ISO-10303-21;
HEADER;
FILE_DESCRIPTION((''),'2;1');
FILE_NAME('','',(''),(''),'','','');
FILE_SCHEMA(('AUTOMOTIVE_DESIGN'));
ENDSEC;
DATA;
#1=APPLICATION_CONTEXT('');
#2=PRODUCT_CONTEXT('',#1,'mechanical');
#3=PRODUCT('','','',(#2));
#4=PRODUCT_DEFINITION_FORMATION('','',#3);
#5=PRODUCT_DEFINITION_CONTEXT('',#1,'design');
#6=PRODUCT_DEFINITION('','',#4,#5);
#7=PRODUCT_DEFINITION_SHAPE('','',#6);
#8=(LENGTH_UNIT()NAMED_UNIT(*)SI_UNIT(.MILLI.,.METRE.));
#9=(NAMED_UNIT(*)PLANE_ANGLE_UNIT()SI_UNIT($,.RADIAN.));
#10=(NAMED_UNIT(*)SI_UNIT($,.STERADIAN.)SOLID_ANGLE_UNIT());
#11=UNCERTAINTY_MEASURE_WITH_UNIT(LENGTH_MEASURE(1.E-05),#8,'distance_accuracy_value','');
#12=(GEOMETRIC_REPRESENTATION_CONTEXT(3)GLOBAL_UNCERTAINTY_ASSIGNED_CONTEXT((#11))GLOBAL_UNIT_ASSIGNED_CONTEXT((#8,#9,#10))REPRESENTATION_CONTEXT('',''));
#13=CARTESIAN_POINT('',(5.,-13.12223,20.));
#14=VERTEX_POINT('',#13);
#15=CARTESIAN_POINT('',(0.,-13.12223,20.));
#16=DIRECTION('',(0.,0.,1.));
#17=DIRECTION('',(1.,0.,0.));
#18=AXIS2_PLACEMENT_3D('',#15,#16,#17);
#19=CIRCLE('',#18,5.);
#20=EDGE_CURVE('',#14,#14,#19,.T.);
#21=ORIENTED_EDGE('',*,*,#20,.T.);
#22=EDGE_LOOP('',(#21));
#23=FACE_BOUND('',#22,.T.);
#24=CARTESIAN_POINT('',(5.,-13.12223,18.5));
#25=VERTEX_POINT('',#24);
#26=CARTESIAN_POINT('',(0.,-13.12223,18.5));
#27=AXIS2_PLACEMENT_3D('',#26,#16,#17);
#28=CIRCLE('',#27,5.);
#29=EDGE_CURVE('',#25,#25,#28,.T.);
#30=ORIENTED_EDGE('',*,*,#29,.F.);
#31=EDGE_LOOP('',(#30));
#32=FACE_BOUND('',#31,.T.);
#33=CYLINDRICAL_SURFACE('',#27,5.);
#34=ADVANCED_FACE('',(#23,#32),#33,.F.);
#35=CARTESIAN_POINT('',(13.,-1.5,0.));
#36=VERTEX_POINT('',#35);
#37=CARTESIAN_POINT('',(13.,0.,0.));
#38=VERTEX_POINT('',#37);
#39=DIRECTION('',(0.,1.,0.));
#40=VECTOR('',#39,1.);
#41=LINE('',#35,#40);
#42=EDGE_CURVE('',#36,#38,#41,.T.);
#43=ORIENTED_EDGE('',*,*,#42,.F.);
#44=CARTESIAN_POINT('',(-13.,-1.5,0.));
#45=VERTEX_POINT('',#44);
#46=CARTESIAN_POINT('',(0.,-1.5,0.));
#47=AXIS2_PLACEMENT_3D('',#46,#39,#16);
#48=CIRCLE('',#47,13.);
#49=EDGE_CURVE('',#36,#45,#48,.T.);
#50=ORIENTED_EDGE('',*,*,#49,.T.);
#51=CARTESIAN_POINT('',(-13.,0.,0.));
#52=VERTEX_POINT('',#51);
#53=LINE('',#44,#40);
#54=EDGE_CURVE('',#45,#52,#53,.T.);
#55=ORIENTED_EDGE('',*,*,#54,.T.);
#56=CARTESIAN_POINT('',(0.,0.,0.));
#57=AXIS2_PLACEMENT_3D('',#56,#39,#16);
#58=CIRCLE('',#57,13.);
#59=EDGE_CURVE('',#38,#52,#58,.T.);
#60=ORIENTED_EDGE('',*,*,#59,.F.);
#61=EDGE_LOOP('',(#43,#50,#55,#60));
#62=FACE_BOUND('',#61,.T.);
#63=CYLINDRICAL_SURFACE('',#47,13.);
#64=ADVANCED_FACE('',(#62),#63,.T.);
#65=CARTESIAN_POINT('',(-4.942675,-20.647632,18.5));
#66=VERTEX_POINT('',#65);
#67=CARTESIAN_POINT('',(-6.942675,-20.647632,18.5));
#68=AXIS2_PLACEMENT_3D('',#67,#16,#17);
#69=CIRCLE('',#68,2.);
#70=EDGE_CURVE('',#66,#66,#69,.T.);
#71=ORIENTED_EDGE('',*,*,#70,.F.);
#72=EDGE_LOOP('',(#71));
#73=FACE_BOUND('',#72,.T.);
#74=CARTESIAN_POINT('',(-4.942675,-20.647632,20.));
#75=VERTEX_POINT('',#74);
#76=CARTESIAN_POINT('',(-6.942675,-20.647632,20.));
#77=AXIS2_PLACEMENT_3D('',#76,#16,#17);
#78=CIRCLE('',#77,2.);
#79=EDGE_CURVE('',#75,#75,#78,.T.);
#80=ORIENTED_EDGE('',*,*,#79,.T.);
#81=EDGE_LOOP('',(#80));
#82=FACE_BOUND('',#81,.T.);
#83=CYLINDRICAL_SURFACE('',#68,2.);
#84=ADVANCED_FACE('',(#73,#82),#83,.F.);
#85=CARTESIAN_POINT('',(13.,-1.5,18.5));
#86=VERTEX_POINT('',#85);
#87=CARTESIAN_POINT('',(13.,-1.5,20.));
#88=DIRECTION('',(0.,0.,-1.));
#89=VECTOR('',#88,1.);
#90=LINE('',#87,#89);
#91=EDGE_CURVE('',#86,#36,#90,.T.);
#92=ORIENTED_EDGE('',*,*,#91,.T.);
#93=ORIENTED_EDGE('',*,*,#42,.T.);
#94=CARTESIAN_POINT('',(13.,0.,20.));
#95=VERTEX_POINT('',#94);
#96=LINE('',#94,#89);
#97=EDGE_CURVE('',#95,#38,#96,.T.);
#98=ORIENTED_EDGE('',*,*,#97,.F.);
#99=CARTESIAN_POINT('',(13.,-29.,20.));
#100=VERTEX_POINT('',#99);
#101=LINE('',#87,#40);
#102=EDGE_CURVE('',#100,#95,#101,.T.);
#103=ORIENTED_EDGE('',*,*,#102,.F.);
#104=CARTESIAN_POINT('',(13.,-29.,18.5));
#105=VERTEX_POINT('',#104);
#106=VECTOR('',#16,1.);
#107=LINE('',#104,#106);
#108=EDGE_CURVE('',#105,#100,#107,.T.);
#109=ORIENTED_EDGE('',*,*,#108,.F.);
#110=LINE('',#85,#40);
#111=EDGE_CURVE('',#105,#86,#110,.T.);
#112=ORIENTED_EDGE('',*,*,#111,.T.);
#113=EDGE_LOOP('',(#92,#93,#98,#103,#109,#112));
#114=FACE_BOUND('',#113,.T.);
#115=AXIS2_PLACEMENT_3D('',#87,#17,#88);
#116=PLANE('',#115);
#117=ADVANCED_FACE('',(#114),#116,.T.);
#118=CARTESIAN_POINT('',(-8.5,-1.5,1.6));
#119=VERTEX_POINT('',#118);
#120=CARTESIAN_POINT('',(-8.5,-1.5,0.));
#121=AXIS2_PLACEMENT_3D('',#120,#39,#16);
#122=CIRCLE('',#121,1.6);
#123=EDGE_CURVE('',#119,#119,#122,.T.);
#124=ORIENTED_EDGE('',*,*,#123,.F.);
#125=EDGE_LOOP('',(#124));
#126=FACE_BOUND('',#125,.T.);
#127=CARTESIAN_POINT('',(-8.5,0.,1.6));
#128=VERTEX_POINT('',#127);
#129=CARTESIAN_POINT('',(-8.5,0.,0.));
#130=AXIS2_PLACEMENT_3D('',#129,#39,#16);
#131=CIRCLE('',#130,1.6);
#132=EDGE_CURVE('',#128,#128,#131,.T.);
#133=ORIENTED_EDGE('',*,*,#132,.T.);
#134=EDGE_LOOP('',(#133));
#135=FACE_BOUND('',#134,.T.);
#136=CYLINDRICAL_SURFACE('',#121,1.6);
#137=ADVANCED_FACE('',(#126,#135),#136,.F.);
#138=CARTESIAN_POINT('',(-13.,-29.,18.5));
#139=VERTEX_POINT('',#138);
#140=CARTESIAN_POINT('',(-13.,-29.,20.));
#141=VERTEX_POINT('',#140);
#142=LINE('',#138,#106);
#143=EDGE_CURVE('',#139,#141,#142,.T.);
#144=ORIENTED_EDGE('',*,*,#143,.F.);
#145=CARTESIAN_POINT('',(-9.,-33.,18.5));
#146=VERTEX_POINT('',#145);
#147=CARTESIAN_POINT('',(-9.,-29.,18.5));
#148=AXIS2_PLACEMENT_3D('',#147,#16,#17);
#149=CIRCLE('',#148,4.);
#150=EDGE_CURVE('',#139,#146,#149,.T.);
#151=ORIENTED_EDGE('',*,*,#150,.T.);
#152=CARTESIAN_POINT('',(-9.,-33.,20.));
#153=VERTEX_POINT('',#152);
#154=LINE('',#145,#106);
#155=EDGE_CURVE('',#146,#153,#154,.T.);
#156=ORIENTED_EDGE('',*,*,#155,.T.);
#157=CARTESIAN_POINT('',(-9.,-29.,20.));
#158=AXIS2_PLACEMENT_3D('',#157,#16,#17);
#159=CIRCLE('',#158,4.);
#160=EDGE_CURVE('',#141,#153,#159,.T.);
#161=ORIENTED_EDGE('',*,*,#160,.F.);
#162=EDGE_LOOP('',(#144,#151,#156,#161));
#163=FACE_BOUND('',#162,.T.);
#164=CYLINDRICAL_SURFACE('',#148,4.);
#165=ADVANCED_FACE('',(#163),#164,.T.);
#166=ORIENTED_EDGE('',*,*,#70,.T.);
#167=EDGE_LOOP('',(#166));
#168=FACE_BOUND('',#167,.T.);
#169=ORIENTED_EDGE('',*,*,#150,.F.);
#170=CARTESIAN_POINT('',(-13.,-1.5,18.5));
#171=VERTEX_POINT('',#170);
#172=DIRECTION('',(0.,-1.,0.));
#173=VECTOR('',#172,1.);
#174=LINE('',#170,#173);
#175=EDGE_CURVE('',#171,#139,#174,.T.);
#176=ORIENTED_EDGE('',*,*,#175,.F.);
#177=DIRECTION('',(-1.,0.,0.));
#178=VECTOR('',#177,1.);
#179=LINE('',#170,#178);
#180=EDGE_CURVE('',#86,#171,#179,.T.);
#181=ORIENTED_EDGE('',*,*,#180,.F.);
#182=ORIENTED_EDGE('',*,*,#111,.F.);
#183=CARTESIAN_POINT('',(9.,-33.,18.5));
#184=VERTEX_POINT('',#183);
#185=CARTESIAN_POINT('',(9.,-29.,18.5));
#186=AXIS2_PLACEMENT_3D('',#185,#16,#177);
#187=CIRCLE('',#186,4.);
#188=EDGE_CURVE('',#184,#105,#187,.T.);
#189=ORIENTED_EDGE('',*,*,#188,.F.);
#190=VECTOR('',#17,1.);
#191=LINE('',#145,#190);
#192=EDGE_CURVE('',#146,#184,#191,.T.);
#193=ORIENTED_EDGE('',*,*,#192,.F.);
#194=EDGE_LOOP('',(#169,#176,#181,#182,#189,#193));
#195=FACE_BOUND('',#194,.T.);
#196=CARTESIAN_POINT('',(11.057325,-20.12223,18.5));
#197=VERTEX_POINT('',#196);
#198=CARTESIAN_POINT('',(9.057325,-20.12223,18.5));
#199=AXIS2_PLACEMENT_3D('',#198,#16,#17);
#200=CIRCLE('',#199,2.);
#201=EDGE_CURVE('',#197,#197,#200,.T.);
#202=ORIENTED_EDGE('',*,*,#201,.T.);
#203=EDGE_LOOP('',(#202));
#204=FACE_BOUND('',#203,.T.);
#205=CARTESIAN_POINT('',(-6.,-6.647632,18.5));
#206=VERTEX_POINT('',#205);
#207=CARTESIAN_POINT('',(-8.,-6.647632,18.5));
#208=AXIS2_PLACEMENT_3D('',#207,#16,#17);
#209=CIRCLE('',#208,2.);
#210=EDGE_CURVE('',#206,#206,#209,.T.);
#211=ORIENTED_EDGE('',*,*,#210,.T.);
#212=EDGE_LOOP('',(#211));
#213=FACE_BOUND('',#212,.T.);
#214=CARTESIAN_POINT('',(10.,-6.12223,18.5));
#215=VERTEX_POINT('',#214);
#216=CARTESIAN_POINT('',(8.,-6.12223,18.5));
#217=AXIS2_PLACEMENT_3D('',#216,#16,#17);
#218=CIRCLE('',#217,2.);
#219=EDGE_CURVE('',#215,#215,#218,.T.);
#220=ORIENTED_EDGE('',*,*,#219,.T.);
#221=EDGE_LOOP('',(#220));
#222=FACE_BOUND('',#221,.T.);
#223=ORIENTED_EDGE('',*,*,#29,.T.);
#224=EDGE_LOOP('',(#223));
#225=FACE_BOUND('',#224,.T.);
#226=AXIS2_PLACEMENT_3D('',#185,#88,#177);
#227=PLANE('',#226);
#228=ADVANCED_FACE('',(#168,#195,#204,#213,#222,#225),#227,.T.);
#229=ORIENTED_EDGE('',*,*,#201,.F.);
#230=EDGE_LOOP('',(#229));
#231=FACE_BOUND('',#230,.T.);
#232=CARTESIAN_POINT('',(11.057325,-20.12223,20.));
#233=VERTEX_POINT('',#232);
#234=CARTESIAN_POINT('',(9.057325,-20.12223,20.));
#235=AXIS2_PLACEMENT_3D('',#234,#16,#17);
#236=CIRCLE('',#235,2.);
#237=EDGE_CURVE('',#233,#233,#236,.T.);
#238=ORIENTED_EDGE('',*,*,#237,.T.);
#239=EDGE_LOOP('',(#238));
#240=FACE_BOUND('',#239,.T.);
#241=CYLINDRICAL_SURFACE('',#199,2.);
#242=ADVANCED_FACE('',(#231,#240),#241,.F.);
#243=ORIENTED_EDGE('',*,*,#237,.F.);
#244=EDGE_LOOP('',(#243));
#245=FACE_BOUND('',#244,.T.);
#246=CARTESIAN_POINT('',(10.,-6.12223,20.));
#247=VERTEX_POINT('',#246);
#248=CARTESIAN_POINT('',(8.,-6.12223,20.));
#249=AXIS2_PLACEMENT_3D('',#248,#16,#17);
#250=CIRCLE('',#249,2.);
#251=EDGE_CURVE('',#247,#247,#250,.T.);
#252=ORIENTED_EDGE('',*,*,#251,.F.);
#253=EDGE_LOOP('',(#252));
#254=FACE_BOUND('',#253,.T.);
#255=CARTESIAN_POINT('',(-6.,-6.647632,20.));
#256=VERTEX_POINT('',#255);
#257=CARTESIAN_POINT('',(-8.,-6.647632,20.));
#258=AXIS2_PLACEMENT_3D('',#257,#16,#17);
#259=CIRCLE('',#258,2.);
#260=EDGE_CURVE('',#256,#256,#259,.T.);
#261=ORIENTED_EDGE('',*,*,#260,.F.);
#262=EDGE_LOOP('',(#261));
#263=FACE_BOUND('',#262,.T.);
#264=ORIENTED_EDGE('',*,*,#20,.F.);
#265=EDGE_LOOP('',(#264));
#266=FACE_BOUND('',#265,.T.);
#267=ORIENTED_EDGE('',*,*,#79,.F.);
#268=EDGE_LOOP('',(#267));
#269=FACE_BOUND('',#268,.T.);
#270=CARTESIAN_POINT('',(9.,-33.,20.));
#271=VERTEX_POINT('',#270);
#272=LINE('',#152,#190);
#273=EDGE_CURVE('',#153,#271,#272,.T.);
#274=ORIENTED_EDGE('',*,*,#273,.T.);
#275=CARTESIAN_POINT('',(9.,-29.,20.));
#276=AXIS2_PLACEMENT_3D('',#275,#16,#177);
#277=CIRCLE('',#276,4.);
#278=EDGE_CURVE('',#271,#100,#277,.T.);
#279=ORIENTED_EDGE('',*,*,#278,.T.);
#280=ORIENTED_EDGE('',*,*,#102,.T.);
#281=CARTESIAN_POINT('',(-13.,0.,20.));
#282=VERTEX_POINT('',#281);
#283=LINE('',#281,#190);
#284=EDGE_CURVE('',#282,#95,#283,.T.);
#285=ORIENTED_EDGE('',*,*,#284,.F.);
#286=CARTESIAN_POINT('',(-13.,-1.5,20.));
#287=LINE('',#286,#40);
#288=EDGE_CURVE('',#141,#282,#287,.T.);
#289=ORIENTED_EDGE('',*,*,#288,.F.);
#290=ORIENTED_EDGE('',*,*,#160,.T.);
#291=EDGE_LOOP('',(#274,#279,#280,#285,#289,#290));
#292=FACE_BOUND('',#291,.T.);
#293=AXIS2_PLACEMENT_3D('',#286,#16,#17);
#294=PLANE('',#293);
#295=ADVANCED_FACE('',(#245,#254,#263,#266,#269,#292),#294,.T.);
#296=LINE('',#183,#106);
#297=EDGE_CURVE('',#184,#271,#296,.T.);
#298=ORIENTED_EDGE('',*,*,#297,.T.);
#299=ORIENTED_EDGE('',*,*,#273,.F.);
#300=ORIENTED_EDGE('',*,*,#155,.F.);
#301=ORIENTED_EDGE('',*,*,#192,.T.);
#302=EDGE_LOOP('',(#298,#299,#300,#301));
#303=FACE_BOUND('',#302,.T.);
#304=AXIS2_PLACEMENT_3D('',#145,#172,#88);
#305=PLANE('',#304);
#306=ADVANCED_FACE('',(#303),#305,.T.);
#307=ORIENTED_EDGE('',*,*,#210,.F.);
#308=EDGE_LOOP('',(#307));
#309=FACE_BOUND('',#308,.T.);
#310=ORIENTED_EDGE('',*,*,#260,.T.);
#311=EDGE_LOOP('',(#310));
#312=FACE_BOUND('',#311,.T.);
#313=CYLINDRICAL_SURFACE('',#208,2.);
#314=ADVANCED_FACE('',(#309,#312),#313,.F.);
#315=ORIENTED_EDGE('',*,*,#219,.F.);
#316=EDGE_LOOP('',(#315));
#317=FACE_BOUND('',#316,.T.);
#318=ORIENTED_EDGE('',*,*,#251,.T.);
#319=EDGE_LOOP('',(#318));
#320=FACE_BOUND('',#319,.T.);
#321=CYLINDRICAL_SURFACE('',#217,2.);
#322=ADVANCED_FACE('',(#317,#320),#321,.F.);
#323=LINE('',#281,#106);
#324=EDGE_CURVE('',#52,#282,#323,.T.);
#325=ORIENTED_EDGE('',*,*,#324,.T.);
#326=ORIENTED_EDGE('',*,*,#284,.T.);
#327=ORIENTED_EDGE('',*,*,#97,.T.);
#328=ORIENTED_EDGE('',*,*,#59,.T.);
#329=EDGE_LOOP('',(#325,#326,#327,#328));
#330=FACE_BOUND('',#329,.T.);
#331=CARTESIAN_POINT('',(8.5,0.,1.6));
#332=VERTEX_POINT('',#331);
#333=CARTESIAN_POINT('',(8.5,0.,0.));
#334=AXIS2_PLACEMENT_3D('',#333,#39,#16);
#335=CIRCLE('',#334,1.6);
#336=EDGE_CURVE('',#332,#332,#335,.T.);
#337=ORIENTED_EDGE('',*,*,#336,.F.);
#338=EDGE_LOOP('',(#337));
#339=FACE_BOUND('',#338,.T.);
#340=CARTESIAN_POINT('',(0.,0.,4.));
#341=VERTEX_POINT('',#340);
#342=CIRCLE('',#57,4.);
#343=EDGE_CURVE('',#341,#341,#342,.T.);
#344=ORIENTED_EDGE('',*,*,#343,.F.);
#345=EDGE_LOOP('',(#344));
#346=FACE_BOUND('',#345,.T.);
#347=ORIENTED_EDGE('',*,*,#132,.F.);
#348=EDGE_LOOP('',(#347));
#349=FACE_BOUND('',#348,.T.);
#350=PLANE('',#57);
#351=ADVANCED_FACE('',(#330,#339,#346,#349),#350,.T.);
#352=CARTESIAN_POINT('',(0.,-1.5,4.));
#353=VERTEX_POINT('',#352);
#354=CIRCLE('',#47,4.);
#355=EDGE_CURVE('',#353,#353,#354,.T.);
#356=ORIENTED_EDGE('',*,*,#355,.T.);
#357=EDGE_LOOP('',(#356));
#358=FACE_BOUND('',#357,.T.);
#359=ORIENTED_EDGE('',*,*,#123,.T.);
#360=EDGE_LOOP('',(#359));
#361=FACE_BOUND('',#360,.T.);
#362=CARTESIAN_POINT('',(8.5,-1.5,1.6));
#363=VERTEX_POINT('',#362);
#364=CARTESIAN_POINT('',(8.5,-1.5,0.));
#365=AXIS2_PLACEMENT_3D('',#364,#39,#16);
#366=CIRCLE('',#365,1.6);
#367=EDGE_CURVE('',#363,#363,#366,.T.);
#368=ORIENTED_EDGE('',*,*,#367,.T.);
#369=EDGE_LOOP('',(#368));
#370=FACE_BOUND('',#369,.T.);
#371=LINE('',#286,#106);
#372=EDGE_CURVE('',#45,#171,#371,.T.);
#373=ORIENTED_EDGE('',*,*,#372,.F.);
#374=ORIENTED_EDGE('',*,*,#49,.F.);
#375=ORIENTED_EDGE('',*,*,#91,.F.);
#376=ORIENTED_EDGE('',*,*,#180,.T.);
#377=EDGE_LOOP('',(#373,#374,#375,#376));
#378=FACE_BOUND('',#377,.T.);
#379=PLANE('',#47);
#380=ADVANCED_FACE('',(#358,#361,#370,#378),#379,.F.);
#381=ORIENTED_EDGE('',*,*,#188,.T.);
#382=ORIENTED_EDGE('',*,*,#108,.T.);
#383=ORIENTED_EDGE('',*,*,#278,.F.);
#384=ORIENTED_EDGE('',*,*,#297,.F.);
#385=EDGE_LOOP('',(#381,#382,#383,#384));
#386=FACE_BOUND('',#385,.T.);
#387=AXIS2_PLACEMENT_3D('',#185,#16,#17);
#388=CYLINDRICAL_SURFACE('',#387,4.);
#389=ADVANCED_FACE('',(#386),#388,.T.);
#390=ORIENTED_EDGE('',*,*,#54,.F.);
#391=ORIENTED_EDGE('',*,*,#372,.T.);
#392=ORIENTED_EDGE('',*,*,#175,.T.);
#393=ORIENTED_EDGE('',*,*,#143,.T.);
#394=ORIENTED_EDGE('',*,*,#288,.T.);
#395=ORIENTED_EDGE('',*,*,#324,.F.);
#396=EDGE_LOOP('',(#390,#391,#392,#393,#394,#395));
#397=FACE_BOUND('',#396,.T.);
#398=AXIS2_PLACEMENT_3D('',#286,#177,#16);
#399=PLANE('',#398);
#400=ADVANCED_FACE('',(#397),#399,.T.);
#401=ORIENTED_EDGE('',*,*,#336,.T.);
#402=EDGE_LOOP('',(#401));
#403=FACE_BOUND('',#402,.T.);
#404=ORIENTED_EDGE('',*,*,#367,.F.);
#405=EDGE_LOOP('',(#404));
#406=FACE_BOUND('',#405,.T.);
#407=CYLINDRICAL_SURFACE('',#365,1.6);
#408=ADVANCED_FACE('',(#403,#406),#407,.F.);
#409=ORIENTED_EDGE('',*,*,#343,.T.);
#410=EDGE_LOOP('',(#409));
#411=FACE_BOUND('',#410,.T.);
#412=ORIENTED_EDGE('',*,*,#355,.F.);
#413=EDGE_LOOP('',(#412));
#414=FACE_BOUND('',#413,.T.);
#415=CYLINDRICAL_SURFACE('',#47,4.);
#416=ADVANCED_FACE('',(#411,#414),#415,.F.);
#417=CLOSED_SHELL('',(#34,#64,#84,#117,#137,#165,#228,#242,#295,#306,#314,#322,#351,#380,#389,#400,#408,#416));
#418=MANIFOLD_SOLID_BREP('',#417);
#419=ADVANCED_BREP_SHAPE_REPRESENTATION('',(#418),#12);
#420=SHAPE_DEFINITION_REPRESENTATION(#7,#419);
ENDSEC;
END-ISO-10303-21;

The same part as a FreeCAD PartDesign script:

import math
import FreeCAD as App
import Part
import Sketcher
Q = App.Units.Quantity

doc = App.newDocument("Part")
body = doc.addObject("PartDesign::Body", "Body")

sketch1 = body.newObject("Sketcher::SketchObject", "Sketch")
sketch1.AttachmentSupport = (doc.getObject("XZ_Plane"), [""])
sketch1.MapMode = "FlatFace"
sketch1.addGeometry([
    Part.LineSegment(App.Vector(-13, 0, 0), App.Vector(-13, 20, 0)),
    Part.LineSegment(App.Vector(-13, 20, 0), App.Vector(13, 20, 0)),
    Part.LineSegment(App.Vector(13, 20, 0), App.Vector(13, 0, 0)),
    Part.ArcOfCircle(Part.Circle(App.Vector(0, 0, 0), App.Vector(0, 0, 1), 13), math.radians(180), math.radians(360)),
    Part.Circle(App.Vector(8.5, 0, 0), App.Vector(0, 0, 1), 1.6),
    Part.Circle(App.Vector(0, 0, 0), App.Vector(0, 0, 1), 4),
    Part.Circle(App.Vector(-8.5, 0, 0), App.Vector(0, 0, 1), 1.6),
], False)
sketch1.addConstraint([
    Sketcher.Constraint("Coincident", 0, 2, 1, 1),
    Sketcher.Constraint("Coincident", 1, 2, 2, 1),
    Sketcher.Constraint("Tangent", 2, 2, 3, 2),
    Sketcher.Constraint("Tangent", 3, 1, 0, 1),
    Sketcher.Constraint("Vertical", 0),
    Sketcher.Constraint("Horizontal", 1),
    Sketcher.Constraint("Vertical", 2),
    Sketcher.Constraint("Coincident", 3, 3, -1, 1),
    Sketcher.Constraint("Coincident", 5, 3, -1, 1),
    Sketcher.Constraint("Equal", 4, 6),
    Sketcher.Constraint("Symmetric", 4, 3, 6, 3, -1, 1),
    Sketcher.Constraint("PointOnObject", 4, 3, -1),
    Sketcher.Constraint("Diameter", 5, Q("8 mm")),
    Sketcher.Constraint("Radius", 3, Q("13 mm")),
    Sketcher.Constraint("Diameter", 4, Q("3.2 mm")),
    Sketcher.Constraint("DistanceY", 0, 1, 0, 2, Q("20 mm")),
    Sketcher.Constraint("DistanceX", 6, 3, 4, 3, Q("17 mm")),
])
pad1 = body.newObject("PartDesign::Pad", "Pad")
pad1.Profile = sketch1
pad1.Length = 1.5

sketch2 = body.newObject("Sketcher::SketchObject", "Sketch001")
sketch2.AttachmentSupport = (doc.getObject("XY_Plane"), [""])
sketch2.MapMode = "FlatFace"
sketch2.AttachmentOffset = App.Placement(App.Vector(0, 0, 20), App.Rotation())
sketch2.addGeometry([
    Part.LineSegment(App.Vector(13, -29, 0), App.Vector(13, -1.5, 0)),
    Part.LineSegment(App.Vector(13, -1.5, 0), App.Vector(-13, -1.5, 0)),
    Part.LineSegment(App.Vector(-13, -1.5, 0), App.Vector(-13, -29, 0)),
    Part.ArcOfCircle(Part.Circle(App.Vector(-9, -29, 0), App.Vector(0, 0, 1), 4), math.radians(180), math.radians(270)),
    Part.LineSegment(App.Vector(-9, -33, 0), App.Vector(9, -33, 0)),
    Part.ArcOfCircle(Part.Circle(App.Vector(9, -29, 0), App.Vector(0, 0, 1), 4), math.radians(-90), math.radians(0)),
    Part.Circle(App.Vector(9.1, -20.1, 0), App.Vector(0, 0, 1), 2),
    Part.Circle(App.Vector(-6.9, -20.6, 0), App.Vector(0, 0, 1), 2),
    Part.Circle(App.Vector(8, -6.1, 0), App.Vector(0, 0, 1), 2),
    Part.Circle(App.Vector(0, -13.1, 0), App.Vector(0, 0, 1), 5),
    Part.Circle(App.Vector(-8, -6.6, 0), App.Vector(0, 0, 1), 2),
], False)
sketch2.addConstraint([
    Sketcher.Constraint("Coincident", 0, 2, 1, 1),
    Sketcher.Constraint("Coincident", 1, 2, 2, 1),
    Sketcher.Constraint("Tangent", 2, 2, 3, 1),
    Sketcher.Constraint("Tangent", 3, 2, 4, 1),
    Sketcher.Constraint("Tangent", 4, 2, 5, 1),
    Sketcher.Constraint("Tangent", 5, 2, 0, 1),
    Sketcher.Constraint("Vertical", 0),
    Sketcher.Constraint("Horizontal", 1),
    Sketcher.Constraint("Vertical", 2),
    Sketcher.Constraint("Horizontal", 4),
    Sketcher.Constraint("Equal", 3, 5),
    Sketcher.Constraint("Equal", 6, 7),
    Sketcher.Constraint("Equal", 7, 8),
    Sketcher.Constraint("Equal", 8, 10),
    Sketcher.Constraint("PointOnObject", 9, 3, -2),
    Sketcher.Constraint("Diameter", 6, Q("4 mm")),
    Sketcher.Constraint("Diameter", 9, Q("10 mm")),
    Sketcher.Constraint("Radius", 3, Q("4 mm")),
    Sketcher.Constraint("DistanceX", 1, 2, 1, 1, Q("26 mm")),
    Sketcher.Constraint("DistanceY", 0, 1, 0, 2, Q("27.5 mm")),
    Sketcher.Constraint("DistanceX", 3, 3, -1, 1, Q("9 mm")),
    Sketcher.Constraint("DistanceY", 3, 3, -1, 1, Q("29 mm")),
    Sketcher.Constraint("DistanceX", -1, 1, 8, 3, Q("8 mm")),
    Sketcher.Constraint("DistanceX", 10, 3, -1, 1, Q("8 mm")),
    Sketcher.Constraint("DistanceX", 7, 3, 6, 3, Q("16 mm")),
    Sketcher.Constraint("DistanceY", 6, 3, 8, 3, Q("14 mm")),
    Sketcher.Constraint("DistanceY", 9, 3, 8, 3, Q("7 mm")),
    Sketcher.Constraint("DistanceY", 7, 3, 10, 3, Q("14 mm")),
    Sketcher.Constraint("DistanceY", 7, 3, 6, 3, Q("0.525402 mm")),
    Sketcher.Constraint("DistanceY", 6, 3, -1, 1, Q("20.12223 mm")),
    Sketcher.Constraint("DistanceX", -1, 1, 6, 3, Q("9.057325 mm")),
])
pad2 = body.newObject("PartDesign::Pad", "Pad001")
pad2.Profile = sketch2
pad2.Length = 1.5
pad2.Reversed = True

doc.recompute()
